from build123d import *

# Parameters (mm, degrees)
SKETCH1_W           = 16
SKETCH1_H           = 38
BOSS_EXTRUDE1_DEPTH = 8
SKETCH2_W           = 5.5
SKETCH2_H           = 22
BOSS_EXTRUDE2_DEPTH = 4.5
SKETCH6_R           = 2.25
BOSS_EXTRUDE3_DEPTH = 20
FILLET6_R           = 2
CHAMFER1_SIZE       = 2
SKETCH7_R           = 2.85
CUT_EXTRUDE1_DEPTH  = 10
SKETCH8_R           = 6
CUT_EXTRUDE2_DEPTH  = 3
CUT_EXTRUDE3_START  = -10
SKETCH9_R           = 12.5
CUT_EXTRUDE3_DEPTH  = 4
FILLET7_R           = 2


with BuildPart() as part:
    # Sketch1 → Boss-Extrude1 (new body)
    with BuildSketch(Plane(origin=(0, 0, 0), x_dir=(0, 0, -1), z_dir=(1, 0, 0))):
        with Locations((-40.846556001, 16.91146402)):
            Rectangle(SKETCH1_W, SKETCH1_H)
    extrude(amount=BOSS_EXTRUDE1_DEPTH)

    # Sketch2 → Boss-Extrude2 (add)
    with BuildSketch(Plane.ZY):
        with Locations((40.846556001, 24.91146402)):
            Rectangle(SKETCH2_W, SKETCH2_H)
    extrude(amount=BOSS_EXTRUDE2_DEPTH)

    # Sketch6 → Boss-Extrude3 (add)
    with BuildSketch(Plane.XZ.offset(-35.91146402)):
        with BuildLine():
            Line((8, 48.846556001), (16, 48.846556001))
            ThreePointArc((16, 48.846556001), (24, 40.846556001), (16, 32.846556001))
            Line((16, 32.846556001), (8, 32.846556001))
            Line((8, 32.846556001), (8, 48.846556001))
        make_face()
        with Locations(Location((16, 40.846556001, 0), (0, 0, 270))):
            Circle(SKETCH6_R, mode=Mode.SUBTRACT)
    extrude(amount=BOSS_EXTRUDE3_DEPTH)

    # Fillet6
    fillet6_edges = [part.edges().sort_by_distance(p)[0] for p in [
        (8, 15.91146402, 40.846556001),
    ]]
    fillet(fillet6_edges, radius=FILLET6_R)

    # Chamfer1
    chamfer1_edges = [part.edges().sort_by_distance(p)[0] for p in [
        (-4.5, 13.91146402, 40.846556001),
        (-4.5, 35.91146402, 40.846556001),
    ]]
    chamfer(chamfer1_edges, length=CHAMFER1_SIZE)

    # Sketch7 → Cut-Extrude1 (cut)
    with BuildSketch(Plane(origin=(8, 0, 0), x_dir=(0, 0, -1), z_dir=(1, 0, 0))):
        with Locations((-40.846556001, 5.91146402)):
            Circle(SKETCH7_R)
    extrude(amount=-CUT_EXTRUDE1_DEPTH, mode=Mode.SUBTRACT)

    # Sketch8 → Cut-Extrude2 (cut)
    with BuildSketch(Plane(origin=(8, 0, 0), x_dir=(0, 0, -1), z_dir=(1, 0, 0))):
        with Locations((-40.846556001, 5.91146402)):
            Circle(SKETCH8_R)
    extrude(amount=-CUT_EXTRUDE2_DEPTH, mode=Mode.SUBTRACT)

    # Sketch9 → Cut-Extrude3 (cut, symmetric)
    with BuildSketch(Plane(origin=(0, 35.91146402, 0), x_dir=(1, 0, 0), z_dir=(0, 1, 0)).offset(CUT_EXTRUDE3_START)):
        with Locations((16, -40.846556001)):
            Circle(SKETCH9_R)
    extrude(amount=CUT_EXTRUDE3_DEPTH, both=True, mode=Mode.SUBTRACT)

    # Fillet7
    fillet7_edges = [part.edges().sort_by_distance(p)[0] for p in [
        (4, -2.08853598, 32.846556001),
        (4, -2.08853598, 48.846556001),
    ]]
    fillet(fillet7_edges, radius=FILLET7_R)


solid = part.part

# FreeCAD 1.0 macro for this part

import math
import FreeCAD as App
import Part
import Sketcher
Q = App.Units.Quantity


def edges_at(feature, points):
    """Names of the edges that pass closest to the given points."""
    edges = feature.Shape.Edges
    near = lambda p: min(range(len(edges)), key=lambda i: edges[i].distToShape(Part.Vertex(*p))[0])
    return sorted({f"Edge{near(p) + 1}" for p in points})


def add_polygon(sketch, points):
    """Adds a closed chain of lines whose ends are joined by coincident constraints."""
    first, n = sketch.GeometryCount, len(points)
    for a, b in zip(points, points[1:] + points[:1]):
        sketch.addGeometry(Part.LineSegment(App.Vector(*a, 0), App.Vector(*b, 0)), False)
    for i in range(n):
        sketch.addConstraint(Sketcher.Constraint("Coincident", first + i, 2, first + (i + 1) % n, 1))

doc = App.newDocument("Part")
params = doc.addObject("Spreadsheet::Sheet", "Params")
for row, (alias, value) in enumerate([
    ("sketch1_width", "38 mm"),
    ("sketch1_height", "16 mm"),
    ("pad1_length", "8 mm"),
    ("sketch2_width", "22 mm"),
    ("sketch2_height", "5.5 mm"),
    ("pad2_length", "4.5 mm"),
    ("sketch3_radius", "8 mm"),
    ("sketch3_diameter", "4.5 mm"),
    ("sketch3_width", "8 mm"),
    ("pad3_length", "20 mm"),
    ("fillet_radius", "2 mm"),
    ("chamfer_size", "2 mm"),
    ("sketch4_diameter", "5.7 mm"),
    ("pocket1_length", "10 mm"),
    ("sketch5_diameter", "12 mm"),
    ("pocket2_length", "3 mm"),
    ("sketch6_diameter", "25 mm"),
    ("pocket3_length", "8 mm"),
    ("fillet2_radius", "2 mm"),
], start=1):
    params.set(f"A{row}", alias)
    params.set(f"B{row}", "=" + value)
    params.setAlias(f"B{row}", alias)

body = doc.addObject("PartDesign::Body", "Body")

# Sketch on YZ plane
sketch1 = body.newObject("Sketcher::SketchObject", "Sketch")
sketch1.AttachmentSupport = (doc.getObject("YZ_Plane"), [""])
sketch1.MapMode = "FlatFace"
add_polygon(sketch1, [(36, 49), (-2, 49), (-2, 33), (36, 33)])  # lines 0-3
sketch1.addConstraint([
    Sketcher.Constraint("Horizontal", 0),
    Sketcher.Constraint("Vertical", 1),
    Sketcher.Constraint("Horizontal", 2),
    Sketcher.Constraint("Vertical", 3),
    Sketcher.Constraint("DistanceX", 0, 2, 0, 1, Q("38 mm")),
    Sketcher.Constraint("DistanceY", 1, 2, 1, 1, Q("16 mm")),
    Sketcher.Constraint("DistanceX", 0, 2, -1, 1, Q("2.088536 mm")),
    Sketcher.Constraint("DistanceY", -1, 1, 0, 2, Q("48.846556 mm")),
])
sketch1.setExpression("Constraints[8]", "Params.sketch1_width")
sketch1.setExpression("Constraints[9]", "Params.sketch1_height")
pad1 = body.newObject("PartDesign::Pad", "Pad")
pad1.Profile = sketch1
pad1.setExpression("Length", "Params.pad1_length")

# Sketch on YZ plane
sketch2 = body.newObject("Sketcher::SketchObject", "Sketch001")
sketch2.AttachmentSupport = (doc.getObject("YZ_Plane"), [""])
sketch2.MapMode = "FlatFace"
add_polygon(sketch2, [(36, 38), (14, 38), (14, 44), (36, 44)])  # lines 0-3
sketch2.addConstraint([
    Sketcher.Constraint("Horizontal", 0),
    Sketcher.Constraint("Vertical", 1),
    Sketcher.Constraint("Horizontal", 2),
    Sketcher.Constraint("Vertical", 3),
    Sketcher.Constraint("DistanceX", 0, 2, 0, 1, Q("22 mm")),
    Sketcher.Constraint("DistanceY", 1, 1, 1, 2, Q("5.5 mm")),
    Sketcher.Constraint("DistanceX", -1, 1, 0, 2, Q("13.911464 mm")),
    Sketcher.Constraint("DistanceY", -1, 1, 0, 2, Q("38.096556 mm")),
])
sketch2.setExpression("Constraints[8]", "Params.sketch2_width")
sketch2.setExpression("Constraints[9]", "Params.sketch2_height")
pad2 = body.newObject("PartDesign::Pad", "Pad001")
pad2.Profile = sketch2
pad2.setExpression("Length", "Params.pad2_length")
pad2.Reversed = True

# Sketch on XZ plane
sketch3 = body.newObject("Sketcher::SketchObject", "Sketch002")
sketch3.AttachmentSupport = (doc.getObject("XZ_Plane"), [""])
sketch3.MapMode = "FlatFace"
sketch3.AttachmentOffset = App.Placement(App.Vector(0, 0, -35.911464), App.Rotation())
sketch3.addGeometry([
    Part.LineSegment(App.Vector(16, 48.8, 0), App.Vector(8, 48.8, 0)),  # 0
    Part.LineSegment(App.Vector(8, 48.8, 0), App.Vector(8, 32.8, 0)),  # 1
    Part.LineSegment(App.Vector(8, 32.8, 0), App.Vector(16, 32.8, 0)),  # 2
    Part.ArcOfCircle(Part.Circle(App.Vector(16, 40.8, 0), App.Vector(0, 0, 1), 8), math.radians(-90), math.radians(90)),  # 3
    Part.Circle(App.Vector(16, 40.8, 0), App.Vector(0, 0, 1), 2.2),  # 4
], False)
sketch3.addConstraint([
    Sketcher.Constraint("Coincident", 0, 2, 1, 1),
    Sketcher.Constraint("Coincident", 1, 2, 2, 1),
    Sketcher.Constraint("Tangent", 2, 2, 3, 1),
    Sketcher.Constraint("Tangent", 3, 2, 0, 1),
    Sketcher.Constraint("Horizontal", 0),
    Sketcher.Constraint("Vertical", 1),
    Sketcher.Constraint("Horizontal", 2),
    Sketcher.Constraint("Coincident", 4, 3, 3, 3),
    Sketcher.Constraint("Radius", 3, Q("8 mm")),
    Sketcher.Constraint("Diameter", 4, Q("4.5 mm")),
    Sketcher.Constraint("DistanceX", 0, 2, 0, 1, Q("8 mm")),
    Sketcher.Constraint("DistanceX", -1, 1, 3, 3, Q("16 mm")),
    Sketcher.Constraint("DistanceY", -1, 1, 3, 3, Q("40.846556 mm")),
])
sketch3.setExpression("Constraints[8]", "Params.sketch3_radius")
sketch3.setExpression("Constraints[9]", "Params.sketch3_diameter")
sketch3.setExpression("Constraints[10]", "Params.sketch3_width")
pad3 = body.newObject("PartDesign::Pad", "Pad002")
pad3.Profile = sketch3
pad3.setExpression("Length", "Params.pad3_length")
doc.recompute()

fillet = body.newObject("PartDesign::Fillet", "Fillet")
fillet.Base = (pad3, edges_at(pad3, [(8, 15.911, 40.847)]))
fillet.setExpression("Radius", "Params.fillet_radius")
doc.recompute()

chamfer = body.newObject("PartDesign::Chamfer", "Chamfer")
chamfer.Base = (fillet, edges_at(fillet, [(-4.5, 13.911, 40.847), (-4.5, 35.911, 40.847)]))
chamfer.setExpression("Size", "Params.chamfer_size")

# Sketch on YZ plane
sketch4 = body.newObject("Sketcher::SketchObject", "Sketch003")
sketch4.AttachmentSupport = (doc.getObject("YZ_Plane"), [""])
sketch4.MapMode = "FlatFace"
sketch4.AttachmentOffset = App.Placement(App.Vector(0, 0, 8), App.Rotation())
sketch4.addGeometry(Part.Circle(App.Vector(5.9, 40.8, 0), App.Vector(0, 0, 1), 2.9), False)
sketch4.addConstraint([
    Sketcher.Constraint("Diameter", 0, Q("5.7 mm")),
    Sketcher.Constraint("DistanceX", -1, 1, 0, 3, Q("5.911464 mm")),
    Sketcher.Constraint("DistanceY", -1, 1, 0, 3, Q("40.846556 mm")),
])
sketch4.setExpression("Constraints[0]", "Params.sketch4_diameter")
pocket1 = body.newObject("PartDesign::Pocket", "Pocket")
pocket1.Profile = sketch4
pocket1.setExpression("Length", "Params.pocket1_length")

# Sketch on YZ plane
sketch5 = body.newObject("Sketcher::SketchObject", "Sketch004")
sketch5.AttachmentSupport = (doc.getObject("YZ_Plane"), [""])
sketch5.MapMode = "FlatFace"
sketch5.AttachmentOffset = App.Placement(App.Vector(0, 0, 8), App.Rotation())
sketch5.addGeometry(Part.Circle(App.Vector(6, 41, 0), App.Vector(0, 0, 1), 6), False)
sketch5.addConstraint([
    Sketcher.Constraint("Diameter", 0, Q("12 mm")),
    Sketcher.Constraint("DistanceX", -1, 1, 0, 3, Q("5.911464 mm")),
    Sketcher.Constraint("DistanceY", -1, 1, 0, 3, Q("40.846556 mm")),
])
sketch5.setExpression("Constraints[0]", "Params.sketch5_diameter")
pocket2 = body.newObject("PartDesign::Pocket", "Pocket001")
pocket2.Profile = sketch5
pocket2.setExpression("Length", "Params.pocket2_length")

# Sketch on XZ plane
sketch6 = body.newObject("Sketcher::SketchObject", "Sketch005")
sketch6.AttachmentSupport = (doc.getObject("XZ_Plane"), [""])
sketch6.MapMode = "FlatFace"
sketch6.AttachmentOffset = App.Placement(App.Vector(0, 0, -25.911464), App.Rotation())
sketch6.addGeometry(Part.Circle(App.Vector(16, 41, 0), App.Vector(0, 0, 1), 12), False)
sketch6.addConstraint([
    Sketcher.Constraint("Diameter", 0, Q("25 mm")),
    Sketcher.Constraint("DistanceX", -1, 1, 0, 3, Q("16 mm")),
    Sketcher.Constraint("DistanceY", -1, 1, 0, 3, Q("40.846556 mm")),
])
sketch6.setExpression("Constraints[0]", "Params.sketch6_diameter")
pocket3 = body.newObject("PartDesign::Pocket", "Pocket002")
pocket3.Profile = sketch6
pocket3.setExpression("Length", "Params.pocket3_length")
pocket3.Midplane = True
doc.recompute()

fillet2 = body.newObject("PartDesign::Fillet", "Fillet001")
fillet2.Base = (pocket3, edges_at(pocket3, [(4, -2.089, 32.847), (4, -2.089, 48.847)]))
fillet2.setExpression("Radius", "Params.fillet2_radius")

doc.recompute()
